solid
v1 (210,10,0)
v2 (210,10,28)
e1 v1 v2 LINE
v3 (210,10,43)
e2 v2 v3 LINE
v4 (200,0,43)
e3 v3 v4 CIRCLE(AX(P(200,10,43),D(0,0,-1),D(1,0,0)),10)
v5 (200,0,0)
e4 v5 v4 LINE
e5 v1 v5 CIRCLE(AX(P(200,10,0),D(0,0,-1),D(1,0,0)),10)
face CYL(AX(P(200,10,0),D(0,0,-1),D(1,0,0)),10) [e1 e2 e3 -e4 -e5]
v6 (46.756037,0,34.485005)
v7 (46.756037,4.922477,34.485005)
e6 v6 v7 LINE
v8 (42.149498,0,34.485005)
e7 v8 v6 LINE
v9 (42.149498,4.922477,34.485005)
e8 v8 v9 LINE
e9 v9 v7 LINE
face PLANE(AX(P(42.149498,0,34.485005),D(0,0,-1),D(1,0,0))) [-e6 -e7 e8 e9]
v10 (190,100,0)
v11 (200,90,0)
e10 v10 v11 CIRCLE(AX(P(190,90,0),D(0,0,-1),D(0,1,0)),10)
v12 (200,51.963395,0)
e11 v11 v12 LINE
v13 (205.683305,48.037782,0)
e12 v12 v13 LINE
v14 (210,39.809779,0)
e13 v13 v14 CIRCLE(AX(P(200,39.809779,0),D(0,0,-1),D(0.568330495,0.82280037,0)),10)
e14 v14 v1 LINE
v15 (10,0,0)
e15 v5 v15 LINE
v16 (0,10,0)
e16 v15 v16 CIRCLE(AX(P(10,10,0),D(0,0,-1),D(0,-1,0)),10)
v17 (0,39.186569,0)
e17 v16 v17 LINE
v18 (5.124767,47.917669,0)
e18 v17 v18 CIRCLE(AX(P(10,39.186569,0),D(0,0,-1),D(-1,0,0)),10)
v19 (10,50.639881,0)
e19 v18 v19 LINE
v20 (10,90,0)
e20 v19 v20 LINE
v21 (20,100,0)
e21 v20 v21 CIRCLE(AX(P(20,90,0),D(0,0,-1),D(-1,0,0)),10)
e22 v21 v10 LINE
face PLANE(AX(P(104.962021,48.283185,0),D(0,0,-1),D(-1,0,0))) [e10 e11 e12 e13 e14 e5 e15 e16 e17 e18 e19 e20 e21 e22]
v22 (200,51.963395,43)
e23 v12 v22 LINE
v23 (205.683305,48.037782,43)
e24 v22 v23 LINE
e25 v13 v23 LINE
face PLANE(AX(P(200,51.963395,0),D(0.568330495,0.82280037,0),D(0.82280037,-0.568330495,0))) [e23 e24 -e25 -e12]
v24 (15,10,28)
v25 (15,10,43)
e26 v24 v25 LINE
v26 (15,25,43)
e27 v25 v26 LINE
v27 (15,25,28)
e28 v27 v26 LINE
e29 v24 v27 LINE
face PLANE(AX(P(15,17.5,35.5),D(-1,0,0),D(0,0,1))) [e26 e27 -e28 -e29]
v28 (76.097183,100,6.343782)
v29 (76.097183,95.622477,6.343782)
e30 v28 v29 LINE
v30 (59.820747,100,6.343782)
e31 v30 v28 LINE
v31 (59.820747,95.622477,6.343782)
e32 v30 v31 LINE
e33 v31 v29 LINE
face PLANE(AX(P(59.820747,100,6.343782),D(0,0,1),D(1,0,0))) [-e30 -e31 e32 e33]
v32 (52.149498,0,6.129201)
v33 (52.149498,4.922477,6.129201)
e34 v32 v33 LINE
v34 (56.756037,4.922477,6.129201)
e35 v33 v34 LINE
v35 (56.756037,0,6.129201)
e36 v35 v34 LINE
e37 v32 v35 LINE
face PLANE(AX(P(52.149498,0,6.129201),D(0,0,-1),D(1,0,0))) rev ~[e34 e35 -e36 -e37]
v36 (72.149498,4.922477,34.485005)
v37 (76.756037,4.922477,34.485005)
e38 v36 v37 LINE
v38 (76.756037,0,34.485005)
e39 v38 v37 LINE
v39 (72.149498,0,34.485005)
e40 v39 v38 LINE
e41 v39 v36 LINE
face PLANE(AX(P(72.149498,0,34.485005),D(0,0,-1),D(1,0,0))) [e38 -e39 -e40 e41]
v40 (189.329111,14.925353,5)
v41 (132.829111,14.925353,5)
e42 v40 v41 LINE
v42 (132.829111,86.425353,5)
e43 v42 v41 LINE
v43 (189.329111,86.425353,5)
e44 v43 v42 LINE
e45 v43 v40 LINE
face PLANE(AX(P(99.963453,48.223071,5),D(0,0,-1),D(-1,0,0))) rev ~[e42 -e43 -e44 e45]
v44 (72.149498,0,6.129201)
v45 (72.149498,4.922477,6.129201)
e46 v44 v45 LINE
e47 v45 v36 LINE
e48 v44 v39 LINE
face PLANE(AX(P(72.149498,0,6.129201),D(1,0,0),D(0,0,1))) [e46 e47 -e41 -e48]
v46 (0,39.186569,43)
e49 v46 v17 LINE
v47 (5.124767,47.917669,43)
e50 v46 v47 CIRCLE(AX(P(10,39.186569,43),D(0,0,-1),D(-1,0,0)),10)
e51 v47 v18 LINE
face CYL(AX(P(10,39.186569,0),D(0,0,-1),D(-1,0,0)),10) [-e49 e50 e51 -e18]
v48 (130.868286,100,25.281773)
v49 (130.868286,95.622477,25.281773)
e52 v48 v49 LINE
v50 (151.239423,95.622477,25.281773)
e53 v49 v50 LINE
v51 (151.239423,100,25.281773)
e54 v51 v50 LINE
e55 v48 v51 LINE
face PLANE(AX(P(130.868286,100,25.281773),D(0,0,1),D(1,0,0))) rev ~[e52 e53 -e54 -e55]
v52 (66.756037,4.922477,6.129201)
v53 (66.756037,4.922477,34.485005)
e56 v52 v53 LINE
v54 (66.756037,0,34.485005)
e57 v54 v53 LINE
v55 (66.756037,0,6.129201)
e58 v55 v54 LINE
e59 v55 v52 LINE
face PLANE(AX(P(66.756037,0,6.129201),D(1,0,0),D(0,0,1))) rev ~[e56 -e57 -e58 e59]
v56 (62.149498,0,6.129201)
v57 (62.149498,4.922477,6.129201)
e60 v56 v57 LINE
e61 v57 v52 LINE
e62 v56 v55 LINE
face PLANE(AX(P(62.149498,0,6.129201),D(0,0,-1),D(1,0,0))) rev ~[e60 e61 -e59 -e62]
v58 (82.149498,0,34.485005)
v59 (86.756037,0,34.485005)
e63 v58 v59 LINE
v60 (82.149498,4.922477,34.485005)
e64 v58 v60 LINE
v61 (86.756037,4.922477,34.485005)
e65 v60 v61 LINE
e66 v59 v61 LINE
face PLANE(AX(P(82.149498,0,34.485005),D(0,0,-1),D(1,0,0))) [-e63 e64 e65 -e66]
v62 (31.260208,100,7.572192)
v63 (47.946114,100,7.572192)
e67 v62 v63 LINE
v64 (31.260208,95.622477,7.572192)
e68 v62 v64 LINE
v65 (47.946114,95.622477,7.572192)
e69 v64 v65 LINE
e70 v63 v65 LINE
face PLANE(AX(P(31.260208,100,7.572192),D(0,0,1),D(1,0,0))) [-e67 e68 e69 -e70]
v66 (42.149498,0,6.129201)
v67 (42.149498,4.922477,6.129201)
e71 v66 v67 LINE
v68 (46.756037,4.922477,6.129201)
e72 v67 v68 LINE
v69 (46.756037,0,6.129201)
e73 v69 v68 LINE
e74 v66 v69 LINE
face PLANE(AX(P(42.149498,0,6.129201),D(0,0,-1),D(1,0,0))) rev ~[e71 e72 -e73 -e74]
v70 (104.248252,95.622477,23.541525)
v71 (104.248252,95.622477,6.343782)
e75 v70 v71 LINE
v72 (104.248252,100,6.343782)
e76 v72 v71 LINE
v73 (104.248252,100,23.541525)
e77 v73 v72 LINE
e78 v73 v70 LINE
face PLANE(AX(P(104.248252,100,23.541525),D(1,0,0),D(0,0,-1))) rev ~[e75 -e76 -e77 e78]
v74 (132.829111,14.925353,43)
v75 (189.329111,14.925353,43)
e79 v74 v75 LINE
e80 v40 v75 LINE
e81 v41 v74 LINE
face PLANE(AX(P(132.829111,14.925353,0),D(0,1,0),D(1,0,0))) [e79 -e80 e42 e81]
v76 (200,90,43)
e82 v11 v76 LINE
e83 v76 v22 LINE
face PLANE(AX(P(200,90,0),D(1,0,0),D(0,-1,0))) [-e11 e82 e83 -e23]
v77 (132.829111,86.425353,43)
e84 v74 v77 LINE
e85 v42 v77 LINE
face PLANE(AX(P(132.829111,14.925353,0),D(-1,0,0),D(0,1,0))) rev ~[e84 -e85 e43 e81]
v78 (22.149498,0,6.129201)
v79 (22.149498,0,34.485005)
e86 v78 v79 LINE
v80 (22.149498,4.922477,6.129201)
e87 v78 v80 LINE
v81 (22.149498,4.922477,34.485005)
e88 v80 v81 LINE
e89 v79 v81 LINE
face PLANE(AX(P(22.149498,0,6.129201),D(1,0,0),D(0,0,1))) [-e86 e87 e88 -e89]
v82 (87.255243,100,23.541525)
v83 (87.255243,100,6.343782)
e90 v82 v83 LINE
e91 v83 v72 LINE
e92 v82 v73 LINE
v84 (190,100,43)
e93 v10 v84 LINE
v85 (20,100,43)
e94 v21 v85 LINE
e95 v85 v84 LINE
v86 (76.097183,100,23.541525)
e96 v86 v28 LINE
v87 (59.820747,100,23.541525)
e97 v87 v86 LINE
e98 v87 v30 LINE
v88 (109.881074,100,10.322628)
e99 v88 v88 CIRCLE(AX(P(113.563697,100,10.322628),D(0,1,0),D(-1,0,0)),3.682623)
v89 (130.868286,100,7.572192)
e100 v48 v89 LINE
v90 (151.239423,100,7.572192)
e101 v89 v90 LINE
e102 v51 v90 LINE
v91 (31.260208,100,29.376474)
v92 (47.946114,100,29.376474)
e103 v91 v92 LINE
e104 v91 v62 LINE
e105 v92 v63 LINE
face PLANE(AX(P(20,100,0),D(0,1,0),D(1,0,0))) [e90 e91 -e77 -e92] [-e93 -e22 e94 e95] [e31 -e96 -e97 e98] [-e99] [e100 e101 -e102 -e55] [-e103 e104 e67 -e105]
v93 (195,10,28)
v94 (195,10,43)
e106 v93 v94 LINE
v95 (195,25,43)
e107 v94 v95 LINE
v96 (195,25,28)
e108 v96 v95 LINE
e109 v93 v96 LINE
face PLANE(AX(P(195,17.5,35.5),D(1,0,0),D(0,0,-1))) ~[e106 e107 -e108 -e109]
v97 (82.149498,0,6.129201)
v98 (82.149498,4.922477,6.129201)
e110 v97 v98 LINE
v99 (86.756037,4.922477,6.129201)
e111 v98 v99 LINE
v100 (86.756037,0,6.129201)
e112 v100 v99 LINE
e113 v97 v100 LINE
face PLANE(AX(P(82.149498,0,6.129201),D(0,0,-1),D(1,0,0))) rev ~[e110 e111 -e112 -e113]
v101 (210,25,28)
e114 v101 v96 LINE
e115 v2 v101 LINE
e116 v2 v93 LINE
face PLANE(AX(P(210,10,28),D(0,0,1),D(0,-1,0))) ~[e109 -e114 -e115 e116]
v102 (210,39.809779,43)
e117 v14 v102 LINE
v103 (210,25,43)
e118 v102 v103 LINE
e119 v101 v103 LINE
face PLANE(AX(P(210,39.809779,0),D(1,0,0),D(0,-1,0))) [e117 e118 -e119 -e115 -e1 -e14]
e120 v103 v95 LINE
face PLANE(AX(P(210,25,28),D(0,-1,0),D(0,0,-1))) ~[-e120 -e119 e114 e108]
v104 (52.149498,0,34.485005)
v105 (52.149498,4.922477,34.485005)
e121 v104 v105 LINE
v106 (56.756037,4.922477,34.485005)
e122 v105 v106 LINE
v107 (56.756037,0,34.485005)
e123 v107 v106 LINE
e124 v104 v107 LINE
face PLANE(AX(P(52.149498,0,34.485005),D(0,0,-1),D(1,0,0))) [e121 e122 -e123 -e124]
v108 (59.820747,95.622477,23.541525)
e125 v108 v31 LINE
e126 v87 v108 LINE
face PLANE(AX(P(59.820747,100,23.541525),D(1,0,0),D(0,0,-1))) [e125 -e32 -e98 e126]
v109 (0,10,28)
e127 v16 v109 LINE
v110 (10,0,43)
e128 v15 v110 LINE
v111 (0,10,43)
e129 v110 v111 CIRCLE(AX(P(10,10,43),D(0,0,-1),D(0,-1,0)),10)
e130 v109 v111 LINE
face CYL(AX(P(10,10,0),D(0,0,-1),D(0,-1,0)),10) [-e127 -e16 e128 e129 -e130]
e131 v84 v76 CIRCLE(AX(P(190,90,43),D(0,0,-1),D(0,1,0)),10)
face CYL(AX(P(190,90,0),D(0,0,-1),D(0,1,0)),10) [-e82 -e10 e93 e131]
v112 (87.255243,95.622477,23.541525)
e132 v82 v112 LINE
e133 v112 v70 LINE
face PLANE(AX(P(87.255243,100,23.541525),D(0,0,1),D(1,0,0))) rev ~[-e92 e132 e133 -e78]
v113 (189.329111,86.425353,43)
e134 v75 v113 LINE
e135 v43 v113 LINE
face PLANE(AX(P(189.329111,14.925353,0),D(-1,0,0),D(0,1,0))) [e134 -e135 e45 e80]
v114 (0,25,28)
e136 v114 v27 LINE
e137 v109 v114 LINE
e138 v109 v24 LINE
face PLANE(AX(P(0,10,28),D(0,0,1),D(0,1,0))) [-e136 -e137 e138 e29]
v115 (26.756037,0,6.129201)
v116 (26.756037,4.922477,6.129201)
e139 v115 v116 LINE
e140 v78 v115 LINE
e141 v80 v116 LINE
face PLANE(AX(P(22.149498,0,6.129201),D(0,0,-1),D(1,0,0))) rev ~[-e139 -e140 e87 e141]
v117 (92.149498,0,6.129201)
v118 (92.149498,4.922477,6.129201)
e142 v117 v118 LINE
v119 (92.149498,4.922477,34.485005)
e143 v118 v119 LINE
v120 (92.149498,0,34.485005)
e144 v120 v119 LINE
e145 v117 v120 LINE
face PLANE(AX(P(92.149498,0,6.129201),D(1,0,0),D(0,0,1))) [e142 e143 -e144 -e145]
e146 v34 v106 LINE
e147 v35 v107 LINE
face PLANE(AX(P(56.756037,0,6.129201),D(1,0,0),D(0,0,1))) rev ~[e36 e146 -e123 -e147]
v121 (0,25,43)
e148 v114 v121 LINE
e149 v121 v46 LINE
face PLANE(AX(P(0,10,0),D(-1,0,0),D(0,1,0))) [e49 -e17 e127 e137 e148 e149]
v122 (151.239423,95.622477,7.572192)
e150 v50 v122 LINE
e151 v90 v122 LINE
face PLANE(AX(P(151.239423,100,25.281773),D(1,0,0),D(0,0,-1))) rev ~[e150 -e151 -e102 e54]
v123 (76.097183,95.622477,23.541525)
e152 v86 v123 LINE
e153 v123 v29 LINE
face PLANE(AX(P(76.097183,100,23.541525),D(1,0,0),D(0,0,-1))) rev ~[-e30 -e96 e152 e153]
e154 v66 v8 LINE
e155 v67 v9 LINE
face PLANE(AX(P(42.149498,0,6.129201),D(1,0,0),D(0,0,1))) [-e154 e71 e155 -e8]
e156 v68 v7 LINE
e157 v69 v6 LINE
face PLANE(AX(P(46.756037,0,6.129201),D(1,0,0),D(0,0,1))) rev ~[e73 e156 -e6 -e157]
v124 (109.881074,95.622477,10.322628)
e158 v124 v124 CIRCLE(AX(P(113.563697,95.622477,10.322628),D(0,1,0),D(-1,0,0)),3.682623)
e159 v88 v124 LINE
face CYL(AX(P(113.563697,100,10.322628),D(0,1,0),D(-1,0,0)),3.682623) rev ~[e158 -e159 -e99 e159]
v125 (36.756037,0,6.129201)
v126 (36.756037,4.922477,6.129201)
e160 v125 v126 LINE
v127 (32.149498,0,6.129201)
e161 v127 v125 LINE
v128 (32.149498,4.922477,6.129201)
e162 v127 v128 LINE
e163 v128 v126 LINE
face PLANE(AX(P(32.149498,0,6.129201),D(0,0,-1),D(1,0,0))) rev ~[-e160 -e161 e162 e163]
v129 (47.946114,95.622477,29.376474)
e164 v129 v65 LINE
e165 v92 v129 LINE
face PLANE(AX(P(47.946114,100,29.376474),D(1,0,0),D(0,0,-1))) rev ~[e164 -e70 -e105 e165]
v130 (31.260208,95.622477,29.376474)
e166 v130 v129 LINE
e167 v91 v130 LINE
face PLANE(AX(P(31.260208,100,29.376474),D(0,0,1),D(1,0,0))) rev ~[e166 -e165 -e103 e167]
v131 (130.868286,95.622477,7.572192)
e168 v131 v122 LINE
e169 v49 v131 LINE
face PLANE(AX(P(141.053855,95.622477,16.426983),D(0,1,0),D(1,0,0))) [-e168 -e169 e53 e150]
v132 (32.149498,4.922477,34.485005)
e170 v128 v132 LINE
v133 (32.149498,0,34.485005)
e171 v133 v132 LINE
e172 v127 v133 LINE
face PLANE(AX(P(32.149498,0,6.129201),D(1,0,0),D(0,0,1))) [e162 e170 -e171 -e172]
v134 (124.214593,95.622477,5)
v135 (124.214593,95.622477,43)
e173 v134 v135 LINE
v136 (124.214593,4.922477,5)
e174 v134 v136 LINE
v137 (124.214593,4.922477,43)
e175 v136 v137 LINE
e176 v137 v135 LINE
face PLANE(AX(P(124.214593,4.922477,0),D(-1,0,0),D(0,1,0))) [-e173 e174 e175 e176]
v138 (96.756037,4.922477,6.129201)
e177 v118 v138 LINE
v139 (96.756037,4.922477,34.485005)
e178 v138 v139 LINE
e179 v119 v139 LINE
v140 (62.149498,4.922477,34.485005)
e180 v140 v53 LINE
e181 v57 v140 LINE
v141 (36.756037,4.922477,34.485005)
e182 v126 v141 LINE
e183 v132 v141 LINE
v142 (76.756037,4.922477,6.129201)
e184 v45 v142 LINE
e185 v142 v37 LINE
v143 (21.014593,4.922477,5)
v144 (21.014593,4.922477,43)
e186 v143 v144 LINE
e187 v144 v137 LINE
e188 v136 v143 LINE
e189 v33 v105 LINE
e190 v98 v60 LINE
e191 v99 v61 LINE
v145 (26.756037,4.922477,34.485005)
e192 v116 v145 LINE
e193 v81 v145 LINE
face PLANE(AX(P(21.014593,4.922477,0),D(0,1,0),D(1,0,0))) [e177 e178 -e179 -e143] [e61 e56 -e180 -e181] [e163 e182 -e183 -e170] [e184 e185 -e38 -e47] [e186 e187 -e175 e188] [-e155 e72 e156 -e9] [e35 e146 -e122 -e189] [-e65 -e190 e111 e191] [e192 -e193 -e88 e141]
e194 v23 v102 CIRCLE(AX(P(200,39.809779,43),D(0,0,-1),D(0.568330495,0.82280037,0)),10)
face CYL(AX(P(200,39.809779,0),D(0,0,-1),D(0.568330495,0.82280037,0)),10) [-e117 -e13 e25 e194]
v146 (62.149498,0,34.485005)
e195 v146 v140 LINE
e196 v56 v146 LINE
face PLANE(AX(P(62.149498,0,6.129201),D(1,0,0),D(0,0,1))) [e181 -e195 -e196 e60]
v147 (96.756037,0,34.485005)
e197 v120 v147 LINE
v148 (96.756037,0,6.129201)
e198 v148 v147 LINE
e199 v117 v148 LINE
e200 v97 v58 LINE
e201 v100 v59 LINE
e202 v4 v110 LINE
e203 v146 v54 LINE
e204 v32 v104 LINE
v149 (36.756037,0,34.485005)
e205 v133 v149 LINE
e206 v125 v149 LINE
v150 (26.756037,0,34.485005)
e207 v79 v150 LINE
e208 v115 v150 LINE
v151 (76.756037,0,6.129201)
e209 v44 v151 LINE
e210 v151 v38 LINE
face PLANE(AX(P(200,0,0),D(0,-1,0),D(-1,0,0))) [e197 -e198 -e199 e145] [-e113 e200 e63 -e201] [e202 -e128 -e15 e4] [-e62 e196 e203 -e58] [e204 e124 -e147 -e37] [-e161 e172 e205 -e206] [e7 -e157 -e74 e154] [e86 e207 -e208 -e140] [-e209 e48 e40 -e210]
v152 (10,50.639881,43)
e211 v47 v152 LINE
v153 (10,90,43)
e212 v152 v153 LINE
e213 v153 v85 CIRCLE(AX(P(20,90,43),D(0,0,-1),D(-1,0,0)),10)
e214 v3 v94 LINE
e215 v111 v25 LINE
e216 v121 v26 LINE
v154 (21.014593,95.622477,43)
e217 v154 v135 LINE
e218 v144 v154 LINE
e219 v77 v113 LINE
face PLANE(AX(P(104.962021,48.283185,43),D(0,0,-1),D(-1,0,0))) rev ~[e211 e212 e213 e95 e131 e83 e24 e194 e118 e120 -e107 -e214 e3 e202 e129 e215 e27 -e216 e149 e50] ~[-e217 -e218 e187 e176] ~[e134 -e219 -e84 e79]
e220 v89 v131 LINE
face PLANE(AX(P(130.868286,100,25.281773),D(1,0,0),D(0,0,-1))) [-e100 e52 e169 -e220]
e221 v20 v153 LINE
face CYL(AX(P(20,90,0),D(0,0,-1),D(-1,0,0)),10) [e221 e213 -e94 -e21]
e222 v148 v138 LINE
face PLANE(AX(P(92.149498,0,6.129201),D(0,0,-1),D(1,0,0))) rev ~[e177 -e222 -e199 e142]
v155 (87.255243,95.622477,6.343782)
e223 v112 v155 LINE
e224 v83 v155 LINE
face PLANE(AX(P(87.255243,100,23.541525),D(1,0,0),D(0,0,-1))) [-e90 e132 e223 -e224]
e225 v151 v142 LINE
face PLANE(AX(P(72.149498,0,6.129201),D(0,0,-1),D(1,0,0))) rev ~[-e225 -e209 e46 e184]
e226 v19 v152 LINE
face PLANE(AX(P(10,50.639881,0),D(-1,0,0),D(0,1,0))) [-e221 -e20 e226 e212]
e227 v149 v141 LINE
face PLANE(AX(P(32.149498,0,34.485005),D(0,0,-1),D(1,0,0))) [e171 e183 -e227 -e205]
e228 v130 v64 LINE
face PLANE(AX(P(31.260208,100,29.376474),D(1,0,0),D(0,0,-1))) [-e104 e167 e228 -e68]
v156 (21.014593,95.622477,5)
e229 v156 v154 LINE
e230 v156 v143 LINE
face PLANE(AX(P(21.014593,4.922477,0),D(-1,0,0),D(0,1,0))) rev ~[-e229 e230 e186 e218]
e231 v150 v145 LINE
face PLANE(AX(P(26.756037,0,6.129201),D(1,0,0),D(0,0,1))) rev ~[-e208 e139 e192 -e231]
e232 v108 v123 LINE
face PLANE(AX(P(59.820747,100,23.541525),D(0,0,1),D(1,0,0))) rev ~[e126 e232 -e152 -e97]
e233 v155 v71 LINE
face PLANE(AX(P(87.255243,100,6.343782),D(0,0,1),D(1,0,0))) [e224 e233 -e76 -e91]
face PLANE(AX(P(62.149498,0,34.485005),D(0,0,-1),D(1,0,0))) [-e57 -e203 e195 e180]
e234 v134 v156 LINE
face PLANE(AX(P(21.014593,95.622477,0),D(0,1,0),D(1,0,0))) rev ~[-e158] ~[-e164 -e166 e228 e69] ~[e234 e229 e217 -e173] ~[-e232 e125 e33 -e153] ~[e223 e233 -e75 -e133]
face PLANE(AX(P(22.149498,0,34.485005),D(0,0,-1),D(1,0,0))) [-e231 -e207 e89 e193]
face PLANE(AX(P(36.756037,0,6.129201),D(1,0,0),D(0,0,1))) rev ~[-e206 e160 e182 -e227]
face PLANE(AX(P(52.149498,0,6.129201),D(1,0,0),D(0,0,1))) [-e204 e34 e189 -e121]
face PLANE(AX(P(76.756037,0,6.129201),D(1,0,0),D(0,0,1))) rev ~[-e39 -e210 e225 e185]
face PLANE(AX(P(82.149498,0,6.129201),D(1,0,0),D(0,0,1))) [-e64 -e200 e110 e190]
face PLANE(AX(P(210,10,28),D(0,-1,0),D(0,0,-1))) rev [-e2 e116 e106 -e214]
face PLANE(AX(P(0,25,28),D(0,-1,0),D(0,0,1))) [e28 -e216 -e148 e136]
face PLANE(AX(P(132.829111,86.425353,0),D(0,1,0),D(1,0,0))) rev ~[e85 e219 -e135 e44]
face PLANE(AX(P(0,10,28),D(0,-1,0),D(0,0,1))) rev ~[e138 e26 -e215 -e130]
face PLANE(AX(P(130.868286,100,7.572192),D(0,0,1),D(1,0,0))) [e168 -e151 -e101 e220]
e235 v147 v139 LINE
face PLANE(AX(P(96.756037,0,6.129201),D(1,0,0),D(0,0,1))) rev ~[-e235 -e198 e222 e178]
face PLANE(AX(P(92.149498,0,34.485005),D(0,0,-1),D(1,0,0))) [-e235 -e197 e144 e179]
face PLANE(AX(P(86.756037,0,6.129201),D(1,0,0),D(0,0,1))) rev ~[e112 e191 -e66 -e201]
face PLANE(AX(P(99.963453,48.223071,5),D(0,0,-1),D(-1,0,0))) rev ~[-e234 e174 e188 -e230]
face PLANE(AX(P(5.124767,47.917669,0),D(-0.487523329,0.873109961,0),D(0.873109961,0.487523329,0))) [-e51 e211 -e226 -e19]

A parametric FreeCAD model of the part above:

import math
import FreeCAD as App
import Part
import Sketcher
from FreeCAD import Vector

doc = App.newDocument("Part")
body = doc.addObject("PartDesign::Body", "Body")

# Sketch on XY plane
sketch1 = doc.addObject("Sketcher::SketchObject", "Sketch")
body.addObject(sketch1)
sketch1.AttachmentSupport = (doc.XY_Plane, [""])
sketch1.MapMode = "FlatFace"
sketch1.addGeometry(Part.LineSegment(Vector(0, 39, 0), Vector(0, 10, 0)), False)
sketch1.addGeometry(Part.ArcOfCircle(Part.Circle(Vector(10, 10, 0), Vector(0, 0, 1), 10), math.radians(180), math.radians(270)), False)
sketch1.addGeometry(Part.LineSegment(Vector(10, 0, 0), Vector(200, 0, 0)), False)
sketch1.addGeometry(Part.ArcOfCircle(Part.Circle(Vector(200, 10, 0), Vector(0, 0, 1), 10), math.radians(-90), math.radians(0)), False)
sketch1.addGeometry(Part.LineSegment(Vector(210, 10, 0), Vector(210, 40, 0)), False)
sketch1.addGeometry(Part.ArcOfCircle(Part.Circle(Vector(200, 40, 0), Vector(0, 0, 1), 10), math.radians(0), math.radians(55)), False)
sketch1.addGeometry(Part.LineSegment(Vector(206, 48, 0), Vector(200, 52, 0)), False)
sketch1.addGeometry(Part.LineSegment(Vector(200, 52, 0), Vector(200, 90, 0)), False)
sketch1.addGeometry(Part.ArcOfCircle(Part.Circle(Vector(190, 90, 0), Vector(0, 0, 1), 10), math.radians(0), math.radians(90)), False)
sketch1.addGeometry(Part.LineSegment(Vector(190, 100, 0), Vector(20, 100, 0)), False)
sketch1.addGeometry(Part.ArcOfCircle(Part.Circle(Vector(20, 90, 0), Vector(0, 0, 1), 10), math.radians(90), math.radians(180)), False)
sketch1.addGeometry(Part.LineSegment(Vector(10, 90, 0), Vector(10, 51, 0)), False)
sketch1.addGeometry(Part.LineSegment(Vector(10, 51, 0), Vector(5, 48, 0)), False)
sketch1.addGeometry(Part.ArcOfCircle(Part.Circle(Vector(10, 39, 0), Vector(0, 0, 1), 10), math.radians(119), math.radians(180)), False)
sketch1.addGeometry(Part.LineSegment(Vector(133, 15, 0), Vector(133, 86, 0)), False)
sketch1.addGeometry(Part.LineSegment(Vector(133, 86, 0), Vector(189, 86, 0)), False)
sketch1.addGeometry(Part.LineSegment(Vector(189, 86, 0), Vector(189, 15, 0)), False)
sketch1.addGeometry(Part.LineSegment(Vector(189, 15, 0), Vector(133, 15, 0)), False)
sketch1.addGeometry(Part.LineSegment(Vector(21, 5, 0), Vector(21, 96, 0)), False)
sketch1.addGeometry(Part.LineSegment(Vector(21, 96, 0), Vector(124, 96, 0)), False)
sketch1.addGeometry(Part.LineSegment(Vector(124, 96, 0), Vector(124, 5, 0)), False)
sketch1.addGeometry(Part.LineSegment(Vector(124, 5, 0), Vector(21, 5, 0)), False)
sketch1.addConstraint(Sketcher.Constraint("Tangent", 0, 2, 1, 1))
sketch1.addConstraint(Sketcher.Constraint("Tangent", 1, 2, 2, 1))
sketch1.addConstraint(Sketcher.Constraint("Tangent", 2, 2, 3, 1))
sketch1.addConstraint(Sketcher.Constraint("Tangent", 3, 2, 4, 1))
sketch1.addConstraint(Sketcher.Constraint("Tangent", 4, 2, 5, 1))
sketch1.addConstraint(Sketcher.Constraint("Tangent", 5, 2, 6, 1))
sketch1.addConstraint(Sketcher.Constraint("Coincident", 6, 2, 7, 1))
sketch1.addConstraint(Sketcher.Constraint("Tangent", 7, 2, 8, 1))
sketch1.addConstraint(Sketcher.Constraint("Tangent", 8, 2, 9, 1))
sketch1.addConstraint(Sketcher.Constraint("Tangent", 9, 2, 10, 1))
sketch1.addConstraint(Sketcher.Constraint("Tangent", 10, 2, 11, 1))
sketch1.addConstraint(Sketcher.Constraint("Coincident", 11, 2, 12, 1))
sketch1.addConstraint(Sketcher.Constraint("Tangent", 12, 2, 13, 1))
sketch1.addConstraint(Sketcher.Constraint("Tangent", 13, 2, 0, 1))
sketch1.addConstraint(Sketcher.Constraint("Coincident", 14, 2, 15, 1))
sketch1.addConstraint(Sketcher.Constraint("Coincident", 15, 2, 16, 1))
sketch1.addConstraint(Sketcher.Constraint("Coincident", 16, 2, 17, 1))
sketch1.addConstraint(Sketcher.Constraint("Coincident", 17, 2, 14, 1))
sketch1.addConstraint(Sketcher.Constraint("Coincident", 18, 2, 19, 1))
sketch1.addConstraint(Sketcher.Constraint("Coincident", 19, 2, 20, 1))
sketch1.addConstraint(Sketcher.Constraint("Coincident", 20, 2, 21, 1))
sketch1.addConstraint(Sketcher.Constraint("Coincident", 21, 2, 18, 1))
sketch1.addConstraint(Sketcher.Constraint("Vertical", 0))
sketch1.addConstraint(Sketcher.Constraint("Horizontal", 2))
sketch1.addConstraint(Sketcher.Constraint("Vertical", 4))
sketch1.addConstraint(Sketcher.Constraint("Vertical", 7))
sketch1.addConstraint(Sketcher.Constraint("Horizontal", 9))
sketch1.addConstraint(Sketcher.Constraint("Vertical", 11))
sketch1.addConstraint(Sketcher.Constraint("Vertical", 14))
sketch1.addConstraint(Sketcher.Constraint("Horizontal", 15))
sketch1.addConstraint(Sketcher.Constraint("Vertical", 16))
sketch1.addConstraint(Sketcher.Constraint("Horizontal", 17))
sketch1.addConstraint(Sketcher.Constraint("Vertical", 18))
sketch1.addConstraint(Sketcher.Constraint("Horizontal", 19))
sketch1.addConstraint(Sketcher.Constraint("Vertical", 20))
sketch1.addConstraint(Sketcher.Constraint("Horizontal", 21))
sketch1.addConstraint(Sketcher.Constraint("Equal", 1, 3))
sketch1.addConstraint(Sketcher.Constraint("Equal", 3, 5))
sketch1.addConstraint(Sketcher.Constraint("Equal", 5, 8))
sketch1.addConstraint(Sketcher.Constraint("Equal", 8, 10))
sketch1.addConstraint(Sketcher.Constraint("Equal", 10, 13))
sketch1.addConstraint(Sketcher.Constraint("PointOnObject", 0, 2, -2))
sketch1.addConstraint(Sketcher.Constraint("PointOnObject", 1, 2, -1))
sketch1.addConstraint(Sketcher.Constraint("Vertical", 2, 2, 6, 2))
sketch1.addConstraint(Sketcher.Constraint("Vertical", 1, 2, 10, 2))
sketch1.addConstraint(Sketcher.Constraint("Radius", 1, 10.0))
sketch1.addConstraint(Sketcher.Constraint("DistanceX", 2, 1, 2, 2, 190.0))
sketch1.addConstraint(Sketcher.Constraint("DistanceX", 15, 1, 15, 2, 56.5))
sketch1.addConstraint(Sketcher.Constraint("DistanceX", 19, 1, 19, 2, 103.2))
sketch1.addConstraint(Sketcher.Constraint("DistanceY", 14, 1, 14, 2, 71.5))
sketch1.addConstraint(Sketcher.Constraint("DistanceY", 18, 1, 18, 2, 90.7))
sketch1.addConstraint(Sketcher.Constraint("DistanceY", -1, 1, 8, 3, 90.0))
sketch1.addConstraint(Sketcher.Constraint("DistanceY", 0, 2, 0, 1, 29.186569))
sketch1.addConstraint(Sketcher.Constraint("DistanceY", 4, 1, 4, 2, 29.809779))
sketch1.addConstraint(Sketcher.Constraint("DistanceY", 11, 2, 11, 1, 39.360119))
sketch1.addConstraint(Sketcher.Constraint("Distance", 6, 6.907271))
sketch1.addConstraint(Sketcher.Constraint("DistanceX", -1, 1, 14, 2, 132.829111))
sketch1.addConstraint(Sketcher.Constraint("DistanceY", 5, 2, 15, 2, 38.387571))
sketch1.addConstraint(Sketcher.Constraint("DistanceY", 12, 2, 18, 2, 47.704808))
sketch1.addConstraint(Sketcher.Constraint("DistanceX", -1, 1, 18, 2, 21.014593))
pad1 = doc.addObject("PartDesign::Pad", "Pad")
body.addObject(pad1)
pad1.Profile = sketch1
pad1.Length = 43

# Sketch on XY plane
sketch2 = doc.addObject("Sketcher::SketchObject", "Sketch001")
body.addObject(sketch2)
sketch2.AttachmentSupport = (doc.XY_Plane, [""])
sketch2.MapMode = "FlatFace"
sketch2.addGeometry(Part.LineSegment(Vector(0, 39, 0), Vector(0, 10, 0)), False)
sketch2.addGeometry(Part.ArcOfCircle(Part.Circle(Vector(10, 10, 0), Vector(0, 0, 1), 10), math.radians(180), math.radians(270)), False)
sketch2.addGeometry(Part.LineSegment(Vector(10, 0, 0), Vector(190, 0, 0)), False)
sketch2.addGeometry(Part.ArcOfCircle(Part.Circle(Vector(190, 10, 0), Vector(0, 0, 1), 10), math.radians(-90), math.radians(0)), False)
sketch2.addGeometry(Part.LineSegment(Vector(200, 10, 0), Vector(200, 40, 0)), False)
sketch2.addGeometry(Part.ArcOfCircle(Part.Circle(Vector(190, 40, 0), Vector(0, 0, 1), 10), math.radians(0), math.radians(55)), False)
sketch2.addGeometry(Part.LineSegment(Vector(196, 48, 0), Vector(190, 52, 0)), False)
sketch2.addGeometry(Part.LineSegment(Vector(190, 52, 0), Vector(190, 90, 0)), False)
sketch2.addGeometry(Part.ArcOfCircle(Part.Circle(Vector(180, 90, 0), Vector(0, 0, 1), 10), math.radians(0), math.radians(90)), False)
sketch2.addGeometry(Part.LineSegment(Vector(180, 100, 0), Vector(20, 100, 0)), False)
sketch2.addGeometry(Part.ArcOfCircle(Part.Circle(Vector(20, 90, 0), Vector(0, 0, 1), 10), math.radians(90), math.radians(180)), False)
sketch2.addGeometry(Part.LineSegment(Vector(10, 90, 0), Vector(10, 51, 0)), False)
sketch2.addGeometry(Part.LineSegment(Vector(10, 51, 0), Vector(5, 48, 0)), False)
sketch2.addGeometry(Part.ArcOfCircle(Part.Circle(Vector(10, 39, 0), Vector(0, 0, 1), 10), math.radians(119), math.radians(180)), False)
sketch2.addConstraint(Sketcher.Constraint("Tangent", 0, 2, 1, 1))
sketch2.addConstraint(Sketcher.Constraint("Tangent", 1, 2, 2, 1))
sketch2.addConstraint(Sketcher.Constraint("Tangent", 2, 2, 3, 1))
sketch2.addConstraint(Sketcher.Constraint("Tangent", 3, 2, 4, 1))
sketch2.addConstraint(Sketcher.Constraint("Tangent", 4, 2, 5, 1))
sketch2.addConstraint(Sketcher.Constraint("Tangent", 5, 2, 6, 1))
sketch2.addConstraint(Sketcher.Constraint("Coincident", 6, 2, 7, 1))
sketch2.addConstraint(Sketcher.Constraint("Tangent", 7, 2, 8, 1))
sketch2.addConstraint(Sketcher.Constraint("Tangent", 8, 2, 9, 1))
sketch2.addConstraint(Sketcher.Constraint("Tangent", 9, 2, 10, 1))
sketch2.addConstraint(Sketcher.Constraint("Tangent", 10, 2, 11, 1))
sketch2.addConstraint(Sketcher.Constraint("Coincident", 11, 2, 12, 1))
sketch2.addConstraint(Sketcher.Constraint("Tangent", 12, 2, 13, 1))
sketch2.addConstraint(Sketcher.Constraint("Tangent", 13, 2, 0, 1))
sketch2.addConstraint(Sketcher.Constraint("Vertical", 0))
sketch2.addConstraint(Sketcher.Constraint("Horizontal", 2))
sketch2.addConstraint(Sketcher.Constraint("Vertical", 4))
sketch2.addConstraint(Sketcher.Constraint("Vertical", 7))
sketch2.addConstraint(Sketcher.Constraint("Horizontal", 9))
sketch2.addConstraint(Sketcher.Constraint("Vertical", 11))
sketch2.addConstraint(Sketcher.Constraint("Equal", 1, 3))
sketch2.addConstraint(Sketcher.Constraint("Equal", 3, 5))
sketch2.addConstraint(Sketcher.Constraint("Equal", 5, 8))
sketch2.addConstraint(Sketcher.Constraint("Equal", 8, 10))
sketch2.addConstraint(Sketcher.Constraint("Equal", 10, 13))
sketch2.addConstraint(Sketcher.Constraint("PointOnObject", 0, 2, -2))
sketch2.addConstraint(Sketcher.Constraint("PointOnObject", 1, 2, -1))
sketch2.addConstraint(Sketcher.Constraint("Vertical", 2, 2, 6, 2))
sketch2.addConstraint(Sketcher.Constraint("Vertical", 1, 2, 10, 2))
sketch2.addConstraint(Sketcher.Constraint("Radius", 1, 10.0))
sketch2.addConstraint(Sketcher.Constraint("DistanceX", 2, 1, 2, 2, 180.0))
sketch2.addConstraint(Sketcher.Constraint("DistanceY", -1, 1, 8, 3, 90.0))
sketch2.addConstraint(Sketcher.Constraint("DistanceY", 0, 2, 0, 1, 29.186569))
sketch2.addConstraint(Sketcher.Constraint("DistanceY", 4, 1, 4, 2, 29.809779))
sketch2.addConstraint(Sketcher.Constraint("DistanceY", 11, 2, 11, 1, 39.360119))
sketch2.addConstraint(Sketcher.Constraint("Distance", 6, 6.907271))
pad2 = doc.addObject("PartDesign::Pad", "Pad001")
body.addObject(pad2)
pad2.Profile = sketch2
pad2.Length = 5

# Sketch on XZ plane
sketch3 = doc.addObject("Sketcher::SketchObject", "Sketch002")
body.addObject(sketch3)
sketch3.AttachmentSupport = (doc.XZ_Plane, [""])
sketch3.MapMode = "FlatFace"
sketch3.AttachmentOffset = App.Placement(Vector(0, 0, -100), App.Rotation())
sketch3.addGeometry(Part.Circle(Vector(113.6, 10.3, 0), Vector(0, 0, 1), 3.7), False)
sketch3.addGeometry(Part.LineSegment(Vector(130.9, 7.6, 0), Vector(130.9, 25.3, 0)), False)
sketch3.addGeometry(Part.LineSegment(Vector(130.9, 25.3, 0), Vector(151.2, 25.3, 0)), False)
sketch3.addGeometry(Part.LineSegment(Vector(151.2, 25.3, 0), Vector(151.2, 7.6, 0)), False)
sketch3.addGeometry(Part.LineSegment(Vector(151.2, 7.6, 0), Vector(130.9, 7.6, 0)), False)
sketch3.addGeometry(Part.LineSegment(Vector(31.3, 7.6, 0), Vector(31.3, 29.4, 0)), False)
sketch3.addGeometry(Part.LineSegment(Vector(31.3, 29.4, 0), Vector(47.9, 29.4, 0)), False)
sketch3.addGeometry(Part.LineSegment(Vector(47.9, 29.4, 0), Vector(47.9, 7.6, 0)), False)
sketch3.addGeometry(Part.LineSegment(Vector(47.9, 7.6, 0), Vector(31.3, 7.6, 0)), False)
sketch3.addGeometry(Part.LineSegment(Vector(59.8, 6.3, 0), Vector(59.8, 23.5, 0)), False)
sketch3.addGeometry(Part.LineSegment(Vector(59.8, 23.5, 0), Vector(76.1, 23.5, 0)), False)
sketch3.addGeometry(Part.LineSegment(Vector(76.1, 23.5, 0), Vector(76.1, 6.3, 0)), False)
sketch3.addGeometry(Part.LineSegment(Vector(76.1, 6.3, 0), Vector(59.8, 6.3, 0)), False)
sketch3.addGeometry(Part.LineSegment(Vector(87.3, 6.3, 0), Vector(87.3, 23.5, 0)), False)
sketch3.addGeometry(Part.LineSegment(Vector(87.3, 23.5, 0), Vector(104.2, 23.5, 0)), False)
sketch3.addGeometry(Part.LineSegment(Vector(104.2, 23.5, 0), Vector(104.2, 6.3, 0)), False)
sketch3.addGeometry(Part.LineSegment(Vector(104.2, 6.3, 0), Vector(87.3, 6.3, 0)), False)
sketch3.addConstraint(Sketcher.Constraint("Coincident", 1, 2, 2, 1))
sketch3.addConstraint(Sketcher.Constraint("Coincident", 2, 2, 3, 1))
sketch3.addConstraint(Sketcher.Constraint("Coincident", 3, 2, 4, 1))
sketch3.addConstraint(Sketcher.Constraint("Coincident", 4, 2, 1, 1))
sketch3.addConstraint(Sketcher.Constraint("Coincident", 5, 2, 6, 1))
sketch3.addConstraint(Sketcher.Constraint("Coincident", 6, 2, 7, 1))
sketch3.addConstraint(Sketcher.Constraint("Coincident", 7, 2, 8, 1))
sketch3.addConstraint(Sketcher.Constraint("Coincident", 8, 2, 5, 1))
sketch3.addConstraint(Sketcher.Constraint("Coincident", 9, 2, 10, 1))
sketch3.addConstraint(Sketcher.Constraint("Coincident", 10, 2, 11, 1))
sketch3.addConstraint(Sketcher.Constraint("Coincident", 11, 2, 12, 1))
sketch3.addConstraint(Sketcher.Constraint("Coincident", 12, 2, 9, 1))
sketch3.addConstraint(Sketcher.Constraint("Coincident", 13, 2, 14, 1))
sketch3.addConstraint(Sketcher.Constraint("Coincident", 14, 2, 15, 1))
sketch3.addConstraint(Sketcher.Constraint("Coincident", 15, 2, 16, 1))
sketch3.addConstraint(Sketcher.Constraint("Coincident", 16, 2, 13, 1))
sketch3.addConstraint(Sketcher.Constraint("Vertical", 1))
sketch3.addConstraint(Sketcher.Constraint("Horizontal", 2))
sketch3.addConstraint(Sketcher.Constraint("Vertical", 3))
sketch3.addConstraint(Sketcher.Constraint("Horizontal", 4))
sketch3.addConstraint(Sketcher.Constraint("Vertical", 5))
sketch3.addConstraint(Sketcher.Constraint("Horizontal", 6))
sketch3.addConstraint(Sketcher.Constraint("Vertical", 7))
sketch3.addConstraint(Sketcher.Constraint("Horizontal", 8))
sketch3.addConstraint(Sketcher.Constraint("Vertical", 9))
sketch3.addConstraint(Sketcher.Constraint("Horizontal", 10))
sketch3.addConstraint(Sketcher.Constraint("Vertical", 11))
sketch3.addConstraint(Sketcher.Constraint("Horizontal", 12))
sketch3.addConstraint(Sketcher.Constraint("Vertical", 13))
sketch3.addConstraint(Sketcher.Constraint("Horizontal", 14))
sketch3.addConstraint(Sketcher.Constraint("Vertical", 15))
sketch3.addConstraint(Sketcher.Constraint("Horizontal", 16))
sketch3.addConstraint(Sketcher.Constraint("Horizontal", 4, 2, 7, 2))
sketch3.addConstraint(Sketcher.Constraint("Horizontal", 10, 2, 13, 2))
sketch3.addConstraint(Sketcher.Constraint("Horizontal", 12, 2, 15, 2))
sketch3.addConstraint(Sketcher.Constraint("Diameter", 0, 7.365246))
sketch3.addConstraint(Sketcher.Constraint("DistanceX", 14, 1, 14, 2, 16.993009))
sketch3.addConstraint(Sketcher.Constraint("DistanceY", 1, 1, 1, 2, 17.709582))
sketch3.addConstraint(Sketcher.Constraint("DistanceY", 1, 2, 5, 2, 4.094701))
sketch3.addConstraint(Sketcher.Constraint("DistanceX", 2, 1, 2, 2, 20.371137))
sketch3.addConstraint(Sketcher.Constraint("DistanceX", 6, 1, 6, 2, 16.685906))
sketch3.addConstraint(Sketcher.Constraint("DistanceX", 10, 1, 10, 2, 16.276436))
sketch3.addConstraint(Sketcher.Constraint("DistanceY", 9, 1, 9, 2, 17.197744))
sketch3.addConstraint(Sketcher.Constraint("DistanceY", -1, 1, 0, 3, 10.322628))
sketch3.addConstraint(Sketcher.Constraint("DistanceY", -1, 1, 3, 2, 7.572192))
sketch3.addConstraint(Sketcher.Constraint("DistanceX", -1, 1, 5, 2, 31.260208))
sketch3.addConstraint(Sketcher.Constraint("DistanceY", -1, 1, 11, 2, 6.343782))
sketch3.addConstraint(Sketcher.Constraint("DistanceX", 0, 3, 1, 2, 17.304589))
sketch3.addConstraint(Sketcher.Constraint("DistanceX", 5, 2, 0, 3, 82.303489))
sketch3.addConstraint(Sketcher.Constraint("DistanceX", 5, 2, 9, 2, 28.560539))
sketch3.addConstraint(Sketcher.Constraint("DistanceX", 10, 2, 13, 2, 11.15806))
pocket1 = doc.addObject("PartDesign::Pocket", "Pocket")
body.addObject(pocket1)
pocket1.Profile = sketch3
pocket1.Length = 4.377523
pocket1.Reversed = True

# Sketch on XZ plane
sketch4 = doc.addObject("Sketcher::SketchObject", "Sketch003")
body.addObject(sketch4)
sketch4.AttachmentSupport = (doc.XZ_Plane, [""])
sketch4.MapMode = "FlatFace"
sketch4.addGeometry(Part.LineSegment(Vector(32.1, 34.5, 0), Vector(32.1, 6.1, 0)), False)
sketch4.addGeometry(Part.LineSegment(Vector(32.1, 6.1, 0), Vector(36.8, 6.1, 0)), False)
sketch4.addGeometry(Part.LineSegment(Vector(36.8, 6.1, 0), Vector(36.8, 34.5, 0)), False)
sketch4.addGeometry(Part.LineSegment(Vector(36.8, 34.5, 0), Vector(32.1, 34.5, 0)), False)
sketch4.addGeometry(Part.LineSegment(Vector(22.1, 34.5, 0), Vector(22.1, 6.1, 0)), False)
sketch4.addGeometry(Part.LineSegment(Vector(22.1, 6.1, 0), Vector(26.8, 6.1, 0)), False)
sketch4.addGeometry(Part.LineSegment(Vector(26.8, 6.1, 0), Vector(26.8, 34.5, 0)), False)
sketch4.addGeometry(Part.LineSegment(Vector(26.8, 34.5, 0), Vector(22.1, 34.5, 0)), False)
sketch4.addGeometry(Part.LineSegment(Vector(42.1, 34.5, 0), Vector(42.1, 6.1, 0)), False)
sketch4.addGeometry(Part.LineSegment(Vector(42.1, 6.1, 0), Vector(46.8, 6.1, 0)), False)
sketch4.addGeometry(Part.LineSegment(Vector(46.8, 6.1, 0), Vector(46.8, 34.5, 0)), False)
sketch4.addGeometry(Part.LineSegment(Vector(46.8, 34.5, 0), Vector(42.1, 34.5, 0)), False)
sketch4.addGeometry(Part.LineSegment(Vector(52.1, 34.5, 0), Vector(52.1, 6.1, 0)), False)
sketch4.addGeometry(Part.LineSegment(Vector(52.1, 6.1, 0), Vector(56.8, 6.1, 0)), False)
sketch4.addGeometry(Part.LineSegment(Vector(56.8, 6.1, 0), Vector(56.8, 34.5, 0)), False)
sketch4.addGeometry(Part.LineSegment(Vector(56.8, 34.5, 0), Vector(52.1, 34.5, 0)), False)
sketch4.addGeometry(Part.LineSegment(Vector(62.1, 34.5, 0), Vector(62.1, 6.1, 0)), False)
sketch4.addGeometry(Part.LineSegment(Vector(62.1, 6.1, 0), Vector(66.8, 6.1, 0)), False)
sketch4.addGeometry(Part.LineSegment(Vector(66.8, 6.1, 0), Vector(66.8, 34.5, 0)), False)
sketch4.addGeometry(Part.LineSegment(Vector(66.8, 34.5, 0), Vector(62.1, 34.5, 0)), False)
sketch4.addGeometry(Part.LineSegment(Vector(72.1, 34.5, 0), Vector(72.1, 6.1, 0)), False)
sketch4.addGeometry(Part.LineSegment(Vector(72.1, 6.1, 0), Vector(76.8, 6.1, 0)), False)
sketch4.addGeometry(Part.LineSegment(Vector(76.8, 6.1, 0), Vector(76.8, 34.5, 0)), False)
sketch4.addGeometry(Part.LineSegment(Vector(76.8, 34.5, 0), Vector(72.1, 34.5, 0)), False)
sketch4.addGeometry(Part.LineSegment(Vector(82.1, 34.5, 0), Vector(82.1, 6.1, 0)), False)
sketch4.addGeometry(Part.LineSegment(Vector(82.1, 6.1, 0), Vector(86.8, 6.1, 0)), False)
sketch4.addGeometry(Part.LineSegment(Vector(86.8, 6.1, 0), Vector(86.8, 34.5, 0)), False)
sketch4.addGeometry(Part.LineSegment(Vector(86.8, 34.5, 0), Vector(82.1, 34.5, 0)), False)
sketch4.addGeometry(Part.LineSegment(Vector(92.1, 34.5, 0), Vector(92.1, 6.1, 0)), False)
sketch4.addGeometry(Part.LineSegment(Vector(92.1, 6.1, 0), Vector(96.8, 6.1, 0)), False)
sketch4.addGeometry(Part.LineSegment(Vector(96.8, 6.1, 0), Vector(96.8, 34.5, 0)), False)
sketch4.addGeometry(Part.LineSegment(Vector(96.8, 34.5, 0), Vector(92.1, 34.5, 0)), False)
sketch4.addConstraint(Sketcher.Constraint("Coincident", 0, 2, 1, 1))
sketch4.addConstraint(Sketcher.Constraint("Coincident", 1, 2, 2, 1))
sketch4.addConstraint(Sketcher.Constraint("Coincident", 2, 2, 3, 1))
sketch4.addConstraint(Sketcher.Constraint("Coincident", 3, 2, 0, 1))
sketch4.addConstraint(Sketcher.Constraint("Coincident", 4, 2, 5, 1))
sketch4.addConstraint(Sketcher.Constraint("Coincident", 5, 2, 6, 1))
sketch4.addConstraint(Sketcher.Constraint("Coincident", 6, 2, 7, 1))
sketch4.addConstraint(Sketcher.Constraint("Coincident", 7, 2, 4, 1))
sketch4.addConstraint(Sketcher.Constraint("Coincident", 8, 2, 9, 1))
sketch4.addConstraint(Sketcher.Constraint("Coincident", 9, 2, 10, 1))
sketch4.addConstraint(Sketcher.Constraint("Coincident", 10, 2, 11, 1))
sketch4.addConstraint(Sketcher.Constraint("Coincident", 11, 2, 8, 1))
sketch4.addConstraint(Sketcher.Constraint("Coincident", 12, 2, 13, 1))
sketch4.addConstraint(Sketcher.Constraint("Coincident", 13, 2, 14, 1))
sketch4.addConstraint(Sketcher.Constraint("Coincident", 14, 2, 15, 1))
sketch4.addConstraint(Sketcher.Constraint("Coincident", 15, 2, 12, 1))
sketch4.addConstraint(Sketcher.Constraint("Coincident", 16, 2, 17, 1))
sketch4.addConstraint(Sketcher.Constraint("Coincident", 17, 2, 18, 1))
sketch4.addConstraint(Sketcher.Constraint("Coincident", 18, 2, 19, 1))
sketch4.addConstraint(Sketcher.Constraint("Coincident", 19, 2, 16, 1))
sketch4.addConstraint(Sketcher.Constraint("Coincident", 20, 2, 21, 1))
sketch4.addConstraint(Sketcher.Constraint("Coincident", 21, 2, 22, 1))
sketch4.addConstraint(Sketcher.Constraint("Coincident", 22, 2, 23, 1))
sketch4.addConstraint(Sketcher.Constraint("Coincident", 23, 2, 20, 1))
sketch4.addConstraint(Sketcher.Constraint("Coincident", 24, 2, 25, 1))
sketch4.addConstraint(Sketcher.Constraint("Coincident", 25, 2, 26, 1))
sketch4.addConstraint(Sketcher.Constraint("Coincident", 26, 2, 27, 1))
sketch4.addConstraint(Sketcher.Constraint("Coincident", 27, 2, 24, 1))
sketch4.addConstraint(Sketcher.Constraint("Coincident", 28, 2, 29, 1))
sketch4.addConstraint(Sketcher.Constraint("Coincident", 29, 2, 30, 1))
sketch4.addConstraint(Sketcher.Constraint("Coincident", 30, 2, 31, 1))
sketch4.addConstraint(Sketcher.Constraint("Coincident", 31, 2, 28, 1))
sketch4.addConstraint(Sketcher.Constraint("Vertical", 0))
sketch4.addConstraint(Sketcher.Constraint("Horizontal", 1))
sketch4.addConstraint(Sketcher.Constraint("Vertical", 2))
sketch4.addConstraint(Sketcher.Constraint("Horizontal", 3))
sketch4.addConstraint(Sketcher.Constraint("Vertical", 4))
sketch4.addConstraint(Sketcher.Constraint("Horizontal", 5))
sketch4.addConstraint(Sketcher.Constraint("Vertical", 6))
sketch4.addConstraint(Sketcher.Constraint("Horizontal", 7))
sketch4.addConstraint(Sketcher.Constraint("Vertical", 8))
sketch4.addConstraint(Sketcher.Constraint("Horizontal", 9))
sketch4.addConstraint(Sketcher.Constraint("Vertical", 10))
sketch4.addConstraint(Sketcher.Constraint("Horizontal", 11))
sketch4.addConstraint(Sketcher.Constraint("Vertical", 12))
sketch4.addConstraint(Sketcher.Constraint("Horizontal", 13))
sketch4.addConstraint(Sketcher.Constraint("Vertical", 14))
sketch4.addConstraint(Sketcher.Constraint("Horizontal", 15))
sketch4.addConstraint(Sketcher.Constraint("Vertical", 16))
sketch4.addConstraint(Sketcher.Constraint("Horizontal", 17))
sketch4.addConstraint(Sketcher.Constraint("Vertical", 18))
sketch4.addConstraint(Sketcher.Constraint("Horizontal", 19))
sketch4.addConstraint(Sketcher.Constraint("Vertical", 20))
sketch4.addConstraint(Sketcher.Constraint("Horizontal", 21))
sketch4.addConstraint(Sketcher.Constraint("Vertical", 22))
sketch4.addConstraint(Sketcher.Constraint("Horizontal", 23))
sketch4.addConstraint(Sketcher.Constraint("Vertical", 24))
sketch4.addConstraint(Sketcher.Constraint("Horizontal", 25))
sketch4.addConstraint(Sketcher.Constraint("Vertical", 26))
sketch4.addConstraint(Sketcher.Constraint("Horizontal", 27))
sketch4.addConstraint(Sketcher.Constraint("Vertical", 28))
sketch4.addConstraint(Sketcher.Constraint("Horizontal", 29))
sketch4.addConstraint(Sketcher.Constraint("Vertical", 30))
sketch4.addConstraint(Sketcher.Constraint("Horizontal", 31))
sketch4.addConstraint(Sketcher.Constraint("Horizontal", 1, 2, 4, 2))
sketch4.addConstraint(Sketcher.Constraint("Horizontal", 3, 2, 6, 2))
sketch4.addConstraint(Sketcher.Constraint("Horizontal", 5, 2, 8, 2))
sketch4.addConstraint(Sketcher.Constraint("Horizontal", 7, 2, 10, 2))
sketch4.addConstraint(Sketcher.Constraint("Horizontal", 9, 2, 12, 2))
sketch4.addConstraint(Sketcher.Constraint("Horizontal", 11, 2, 14, 2))
sketch4.addConstraint(Sketcher.Constraint("Horizontal", 13, 2, 16, 2))
sketch4.addConstraint(Sketcher.Constraint("Horizontal", 15, 2, 18, 2))
sketch4.addConstraint(Sketcher.Constraint("Horizontal", 17, 2, 20, 2))
sketch4.addConstraint(Sketcher.Constraint("Horizontal", 19, 2, 22, 2))
sketch4.addConstraint(Sketcher.Constraint("Horizontal", 21, 2, 24, 2))
sketch4.addConstraint(Sketcher.Constraint("Horizontal", 23, 2, 26, 2))
sketch4.addConstraint(Sketcher.Constraint("Horizontal", 25, 2, 28, 2))
sketch4.addConstraint(Sketcher.Constraint("Horizontal", 27, 2, 30, 2))
sketch4.addConstraint(Sketcher.Constraint("Equal", 3, 5))
sketch4.addConstraint(Sketcher.Constraint("Equal", 7, 9))
sketch4.addConstraint(Sketcher.Constraint("Equal", 11, 13))
sketch4.addConstraint(Sketcher.Constraint("Equal", 15, 17))
sketch4.addConstraint(Sketcher.Constraint("Equal", 19, 21))
sketch4.addConstraint(Sketcher.Constraint("Equal", 23, 25))
sketch4.addConstraint(Sketcher.Constraint("Equal", 27, 29))
sketch4.addConstraint(Sketcher.Constraint("DistanceX", 4, 2, 0, 2, 10.0))
sketch4.addConstraint(Sketcher.Constraint("DistanceX", 0, 2, 8, 2, 10.0))
sketch4.addConstraint(Sketcher.Constraint("DistanceX", 8, 2, 12, 2, 10.0))
sketch4.addConstraint(Sketcher.Constraint("DistanceX", 12, 2, 16, 2, 10.0))
sketch4.addConstraint(Sketcher.Constraint("DistanceX", 16, 2, 20, 2, 10.0))
sketch4.addConstraint(Sketcher.Constraint("DistanceX", 20, 2, 24, 2, 10.0))
sketch4.addConstraint(Sketcher.Constraint("DistanceX", 24, 2, 28, 2, 10.0))
sketch4.addConstraint(Sketcher.Constraint("DistanceX", 1, 1, 1, 2, 4.606539))
sketch4.addConstraint(Sketcher.Constraint("DistanceX", -1, 1, 0, 2, 32.149498))
sketch4.addConstraint(Sketcher.Constraint("DistanceY", -1, 1, 0, 2, 6.129201))
sketch4.addConstraint(Sketcher.Constraint("DistanceY", 0, 2, 0, 1, 28.355804))
pocket2 = doc.addObject("PartDesign::Pocket", "Pocket001")
body.addObject(pocket2)
pocket2.Profile = sketch4
pocket2.Length = 4.922477

# Sketch on YZ plane
sketch5 = doc.addObject("Sketcher::SketchObject", "Sketch004")
body.addObject(sketch5)
sketch5.AttachmentSupport = (doc.YZ_Plane, [""])
sketch5.MapMode = "FlatFace"
sketch5.addGeometry(Part.LineSegment(Vector(25, 28, 0), Vector(10, 28, 0)), False)
sketch5.addGeometry(Part.LineSegment(Vector(10, 28, 0), Vector(10, 43, 0)), False)
sketch5.addGeometry(Part.LineSegment(Vector(10, 43, 0), Vector(25, 43, 0)), False)
sketch5.addGeometry(Part.LineSegment(Vector(25, 43, 0), Vector(25, 28, 0)), False)
sketch5.addConstraint(Sketcher.Constraint("Coincident", 0, 2, 1, 1))
sketch5.addConstraint(Sketcher.Constraint("Coincident", 1, 2, 2, 1))
sketch5.addConstraint(Sketcher.Constraint("Coincident", 2, 2, 3, 1))
sketch5.addConstraint(Sketcher.Constraint("Coincident", 3, 2, 0, 1))
sketch5.addConstraint(Sketcher.Constraint("Horizontal", 0))
sketch5.addConstraint(Sketcher.Constraint("Vertical", 1))
sketch5.addConstraint(Sketcher.Constraint("Horizontal", 2))
sketch5.addConstraint(Sketcher.Constraint("Vertical", 3))
sketch5.addConstraint(Sketcher.Constraint("Equal", 2, 1))
sketch5.addConstraint(Sketcher.Constraint("DistanceX", 0, 2, 0, 1, 15.0))
sketch5.addConstraint(Sketcher.Constraint("DistanceX", -1, 1, 0, 2, 10.0))
sketch5.addConstraint(Sketcher.Constraint("DistanceY", -1, 1, 0, 2, 28.0))
pocket3 = doc.addObject("PartDesign::Pocket", "Pocket002")
body.addObject(pocket3)
pocket3.Profile = sketch5
pocket3.Length = 15
pocket3.Reversed = True
doc.recompute()

datumplane = doc.addObject("PartDesign::Plane", "DatumPlane")
body.addObject(datumplane)
datumplane.AttachmentSupport = (doc.YZ_Plane, [""])
datumplane.MapMode = "FlatFace"
datumplane.AttachmentOffset = App.Placement(Vector(0, 0, 105), App.Rotation())
mirrored = doc.addObject("PartDesign::Mirrored", "Mirrored")
body.addObject(mirrored)
mirrored.Originals = [pocket3]
mirrored.MirrorPlane = (datumplane, [""])
body.Tip = mirrored

doc.recompute()
